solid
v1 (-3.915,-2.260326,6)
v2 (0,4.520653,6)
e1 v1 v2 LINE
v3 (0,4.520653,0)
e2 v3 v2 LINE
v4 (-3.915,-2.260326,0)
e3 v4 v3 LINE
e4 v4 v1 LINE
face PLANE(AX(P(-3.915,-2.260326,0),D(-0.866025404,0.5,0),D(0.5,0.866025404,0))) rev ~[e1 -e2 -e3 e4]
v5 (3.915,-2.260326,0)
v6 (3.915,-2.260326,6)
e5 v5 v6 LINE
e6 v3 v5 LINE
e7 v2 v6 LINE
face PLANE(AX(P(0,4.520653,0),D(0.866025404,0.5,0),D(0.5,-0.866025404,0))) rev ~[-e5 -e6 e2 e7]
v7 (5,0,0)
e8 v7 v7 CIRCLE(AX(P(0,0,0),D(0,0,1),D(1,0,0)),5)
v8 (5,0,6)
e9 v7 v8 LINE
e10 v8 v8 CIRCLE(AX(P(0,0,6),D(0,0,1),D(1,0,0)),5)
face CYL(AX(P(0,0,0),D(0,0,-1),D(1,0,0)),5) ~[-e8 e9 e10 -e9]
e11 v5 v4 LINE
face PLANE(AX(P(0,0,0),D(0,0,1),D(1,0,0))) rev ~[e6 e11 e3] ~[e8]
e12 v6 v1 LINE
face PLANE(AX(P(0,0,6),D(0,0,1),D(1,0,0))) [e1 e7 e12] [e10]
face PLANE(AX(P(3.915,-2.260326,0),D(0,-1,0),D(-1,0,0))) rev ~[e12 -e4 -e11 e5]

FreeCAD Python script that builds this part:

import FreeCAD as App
import Part
import Sketcher
from FreeCAD import Vector
Q = App.Units.Quantity


def add_polygon(sketch, points):
    """Adds a closed chain of lines whose ends are joined by coincident constraints."""
    first, n = sketch.GeometryCount, len(points)
    for a, b in zip(points, points[1:] + points[:1]):
        sketch.addGeometry(Part.LineSegment(App.Vector(*a, 0), App.Vector(*b, 0)), False)
    for i in range(n):
        sketch.addConstraint(Sketcher.Constraint("Coincident", first + i, 2, first + (i + 1) % n, 1))

doc = App.newDocument("Part")
params = doc.addObject("Spreadsheet::Sheet", "Params")
for row, (alias, value) in enumerate([
    ("sketch1_diameter", "10 mm"),
    ("sketch1_width", "7.83 mm"),
    ("pad1_length", "6 mm"),
], start=1):
    params.set(f"A{row}", alias)
    params.set(f"B{row}", "=" + value)
    params.setAlias(f"B{row}", alias)

body = doc.addObject("PartDesign::Body", "Body")

# Sketch on XY plane
sketch1 = doc.addObject("Sketcher::SketchObject", "Sketch")
body.addObject(sketch1)
sketch1.AttachmentSupport = (doc.XY_Plane, [""])
sketch1.MapMode = "FlatFace"
sketch1.addGeometry(Part.Circle(Vector(0, 0, 0), Vector(0, 0, 1), 5), False)  # 0
add_polygon(sketch1, [(3.915, -2.260326), (-3.915, -2.260326), (0, 4.520653)])  # lines 1-3
sketch1.addConstraint([
    Sketcher.Constraint("Horizontal", 1),
    Sketcher.Constraint("Coincident", 0, 3, -1, 1),
    Sketcher.Constraint("PointOnObject", 2, 2, -2),
    Sketcher.Constraint("Equal", 2, 3),
    Sketcher.Constraint("Diameter", 0, 10.0),
    Sketcher.Constraint("Angle", 2, Q("60 deg")),
    Sketcher.Constraint("DistanceX", 1, 2, 1, 1, 7.83),
    Sketcher.Constraint("DistanceY", 1, 2, -1, 1, 2.260326),
])
sketch1.setExpression("Constraints[7]", "Params.sketch1_diameter")
sketch1.setExpression("Constraints[9]", "Params.sketch1_width")
pad1 = doc.addObject("PartDesign::Pad", "Pad")
body.addObject(pad1)
pad1.Profile = sketch1
pad1.setExpression("Length", "Params.pad1_length")

doc.recompute()
